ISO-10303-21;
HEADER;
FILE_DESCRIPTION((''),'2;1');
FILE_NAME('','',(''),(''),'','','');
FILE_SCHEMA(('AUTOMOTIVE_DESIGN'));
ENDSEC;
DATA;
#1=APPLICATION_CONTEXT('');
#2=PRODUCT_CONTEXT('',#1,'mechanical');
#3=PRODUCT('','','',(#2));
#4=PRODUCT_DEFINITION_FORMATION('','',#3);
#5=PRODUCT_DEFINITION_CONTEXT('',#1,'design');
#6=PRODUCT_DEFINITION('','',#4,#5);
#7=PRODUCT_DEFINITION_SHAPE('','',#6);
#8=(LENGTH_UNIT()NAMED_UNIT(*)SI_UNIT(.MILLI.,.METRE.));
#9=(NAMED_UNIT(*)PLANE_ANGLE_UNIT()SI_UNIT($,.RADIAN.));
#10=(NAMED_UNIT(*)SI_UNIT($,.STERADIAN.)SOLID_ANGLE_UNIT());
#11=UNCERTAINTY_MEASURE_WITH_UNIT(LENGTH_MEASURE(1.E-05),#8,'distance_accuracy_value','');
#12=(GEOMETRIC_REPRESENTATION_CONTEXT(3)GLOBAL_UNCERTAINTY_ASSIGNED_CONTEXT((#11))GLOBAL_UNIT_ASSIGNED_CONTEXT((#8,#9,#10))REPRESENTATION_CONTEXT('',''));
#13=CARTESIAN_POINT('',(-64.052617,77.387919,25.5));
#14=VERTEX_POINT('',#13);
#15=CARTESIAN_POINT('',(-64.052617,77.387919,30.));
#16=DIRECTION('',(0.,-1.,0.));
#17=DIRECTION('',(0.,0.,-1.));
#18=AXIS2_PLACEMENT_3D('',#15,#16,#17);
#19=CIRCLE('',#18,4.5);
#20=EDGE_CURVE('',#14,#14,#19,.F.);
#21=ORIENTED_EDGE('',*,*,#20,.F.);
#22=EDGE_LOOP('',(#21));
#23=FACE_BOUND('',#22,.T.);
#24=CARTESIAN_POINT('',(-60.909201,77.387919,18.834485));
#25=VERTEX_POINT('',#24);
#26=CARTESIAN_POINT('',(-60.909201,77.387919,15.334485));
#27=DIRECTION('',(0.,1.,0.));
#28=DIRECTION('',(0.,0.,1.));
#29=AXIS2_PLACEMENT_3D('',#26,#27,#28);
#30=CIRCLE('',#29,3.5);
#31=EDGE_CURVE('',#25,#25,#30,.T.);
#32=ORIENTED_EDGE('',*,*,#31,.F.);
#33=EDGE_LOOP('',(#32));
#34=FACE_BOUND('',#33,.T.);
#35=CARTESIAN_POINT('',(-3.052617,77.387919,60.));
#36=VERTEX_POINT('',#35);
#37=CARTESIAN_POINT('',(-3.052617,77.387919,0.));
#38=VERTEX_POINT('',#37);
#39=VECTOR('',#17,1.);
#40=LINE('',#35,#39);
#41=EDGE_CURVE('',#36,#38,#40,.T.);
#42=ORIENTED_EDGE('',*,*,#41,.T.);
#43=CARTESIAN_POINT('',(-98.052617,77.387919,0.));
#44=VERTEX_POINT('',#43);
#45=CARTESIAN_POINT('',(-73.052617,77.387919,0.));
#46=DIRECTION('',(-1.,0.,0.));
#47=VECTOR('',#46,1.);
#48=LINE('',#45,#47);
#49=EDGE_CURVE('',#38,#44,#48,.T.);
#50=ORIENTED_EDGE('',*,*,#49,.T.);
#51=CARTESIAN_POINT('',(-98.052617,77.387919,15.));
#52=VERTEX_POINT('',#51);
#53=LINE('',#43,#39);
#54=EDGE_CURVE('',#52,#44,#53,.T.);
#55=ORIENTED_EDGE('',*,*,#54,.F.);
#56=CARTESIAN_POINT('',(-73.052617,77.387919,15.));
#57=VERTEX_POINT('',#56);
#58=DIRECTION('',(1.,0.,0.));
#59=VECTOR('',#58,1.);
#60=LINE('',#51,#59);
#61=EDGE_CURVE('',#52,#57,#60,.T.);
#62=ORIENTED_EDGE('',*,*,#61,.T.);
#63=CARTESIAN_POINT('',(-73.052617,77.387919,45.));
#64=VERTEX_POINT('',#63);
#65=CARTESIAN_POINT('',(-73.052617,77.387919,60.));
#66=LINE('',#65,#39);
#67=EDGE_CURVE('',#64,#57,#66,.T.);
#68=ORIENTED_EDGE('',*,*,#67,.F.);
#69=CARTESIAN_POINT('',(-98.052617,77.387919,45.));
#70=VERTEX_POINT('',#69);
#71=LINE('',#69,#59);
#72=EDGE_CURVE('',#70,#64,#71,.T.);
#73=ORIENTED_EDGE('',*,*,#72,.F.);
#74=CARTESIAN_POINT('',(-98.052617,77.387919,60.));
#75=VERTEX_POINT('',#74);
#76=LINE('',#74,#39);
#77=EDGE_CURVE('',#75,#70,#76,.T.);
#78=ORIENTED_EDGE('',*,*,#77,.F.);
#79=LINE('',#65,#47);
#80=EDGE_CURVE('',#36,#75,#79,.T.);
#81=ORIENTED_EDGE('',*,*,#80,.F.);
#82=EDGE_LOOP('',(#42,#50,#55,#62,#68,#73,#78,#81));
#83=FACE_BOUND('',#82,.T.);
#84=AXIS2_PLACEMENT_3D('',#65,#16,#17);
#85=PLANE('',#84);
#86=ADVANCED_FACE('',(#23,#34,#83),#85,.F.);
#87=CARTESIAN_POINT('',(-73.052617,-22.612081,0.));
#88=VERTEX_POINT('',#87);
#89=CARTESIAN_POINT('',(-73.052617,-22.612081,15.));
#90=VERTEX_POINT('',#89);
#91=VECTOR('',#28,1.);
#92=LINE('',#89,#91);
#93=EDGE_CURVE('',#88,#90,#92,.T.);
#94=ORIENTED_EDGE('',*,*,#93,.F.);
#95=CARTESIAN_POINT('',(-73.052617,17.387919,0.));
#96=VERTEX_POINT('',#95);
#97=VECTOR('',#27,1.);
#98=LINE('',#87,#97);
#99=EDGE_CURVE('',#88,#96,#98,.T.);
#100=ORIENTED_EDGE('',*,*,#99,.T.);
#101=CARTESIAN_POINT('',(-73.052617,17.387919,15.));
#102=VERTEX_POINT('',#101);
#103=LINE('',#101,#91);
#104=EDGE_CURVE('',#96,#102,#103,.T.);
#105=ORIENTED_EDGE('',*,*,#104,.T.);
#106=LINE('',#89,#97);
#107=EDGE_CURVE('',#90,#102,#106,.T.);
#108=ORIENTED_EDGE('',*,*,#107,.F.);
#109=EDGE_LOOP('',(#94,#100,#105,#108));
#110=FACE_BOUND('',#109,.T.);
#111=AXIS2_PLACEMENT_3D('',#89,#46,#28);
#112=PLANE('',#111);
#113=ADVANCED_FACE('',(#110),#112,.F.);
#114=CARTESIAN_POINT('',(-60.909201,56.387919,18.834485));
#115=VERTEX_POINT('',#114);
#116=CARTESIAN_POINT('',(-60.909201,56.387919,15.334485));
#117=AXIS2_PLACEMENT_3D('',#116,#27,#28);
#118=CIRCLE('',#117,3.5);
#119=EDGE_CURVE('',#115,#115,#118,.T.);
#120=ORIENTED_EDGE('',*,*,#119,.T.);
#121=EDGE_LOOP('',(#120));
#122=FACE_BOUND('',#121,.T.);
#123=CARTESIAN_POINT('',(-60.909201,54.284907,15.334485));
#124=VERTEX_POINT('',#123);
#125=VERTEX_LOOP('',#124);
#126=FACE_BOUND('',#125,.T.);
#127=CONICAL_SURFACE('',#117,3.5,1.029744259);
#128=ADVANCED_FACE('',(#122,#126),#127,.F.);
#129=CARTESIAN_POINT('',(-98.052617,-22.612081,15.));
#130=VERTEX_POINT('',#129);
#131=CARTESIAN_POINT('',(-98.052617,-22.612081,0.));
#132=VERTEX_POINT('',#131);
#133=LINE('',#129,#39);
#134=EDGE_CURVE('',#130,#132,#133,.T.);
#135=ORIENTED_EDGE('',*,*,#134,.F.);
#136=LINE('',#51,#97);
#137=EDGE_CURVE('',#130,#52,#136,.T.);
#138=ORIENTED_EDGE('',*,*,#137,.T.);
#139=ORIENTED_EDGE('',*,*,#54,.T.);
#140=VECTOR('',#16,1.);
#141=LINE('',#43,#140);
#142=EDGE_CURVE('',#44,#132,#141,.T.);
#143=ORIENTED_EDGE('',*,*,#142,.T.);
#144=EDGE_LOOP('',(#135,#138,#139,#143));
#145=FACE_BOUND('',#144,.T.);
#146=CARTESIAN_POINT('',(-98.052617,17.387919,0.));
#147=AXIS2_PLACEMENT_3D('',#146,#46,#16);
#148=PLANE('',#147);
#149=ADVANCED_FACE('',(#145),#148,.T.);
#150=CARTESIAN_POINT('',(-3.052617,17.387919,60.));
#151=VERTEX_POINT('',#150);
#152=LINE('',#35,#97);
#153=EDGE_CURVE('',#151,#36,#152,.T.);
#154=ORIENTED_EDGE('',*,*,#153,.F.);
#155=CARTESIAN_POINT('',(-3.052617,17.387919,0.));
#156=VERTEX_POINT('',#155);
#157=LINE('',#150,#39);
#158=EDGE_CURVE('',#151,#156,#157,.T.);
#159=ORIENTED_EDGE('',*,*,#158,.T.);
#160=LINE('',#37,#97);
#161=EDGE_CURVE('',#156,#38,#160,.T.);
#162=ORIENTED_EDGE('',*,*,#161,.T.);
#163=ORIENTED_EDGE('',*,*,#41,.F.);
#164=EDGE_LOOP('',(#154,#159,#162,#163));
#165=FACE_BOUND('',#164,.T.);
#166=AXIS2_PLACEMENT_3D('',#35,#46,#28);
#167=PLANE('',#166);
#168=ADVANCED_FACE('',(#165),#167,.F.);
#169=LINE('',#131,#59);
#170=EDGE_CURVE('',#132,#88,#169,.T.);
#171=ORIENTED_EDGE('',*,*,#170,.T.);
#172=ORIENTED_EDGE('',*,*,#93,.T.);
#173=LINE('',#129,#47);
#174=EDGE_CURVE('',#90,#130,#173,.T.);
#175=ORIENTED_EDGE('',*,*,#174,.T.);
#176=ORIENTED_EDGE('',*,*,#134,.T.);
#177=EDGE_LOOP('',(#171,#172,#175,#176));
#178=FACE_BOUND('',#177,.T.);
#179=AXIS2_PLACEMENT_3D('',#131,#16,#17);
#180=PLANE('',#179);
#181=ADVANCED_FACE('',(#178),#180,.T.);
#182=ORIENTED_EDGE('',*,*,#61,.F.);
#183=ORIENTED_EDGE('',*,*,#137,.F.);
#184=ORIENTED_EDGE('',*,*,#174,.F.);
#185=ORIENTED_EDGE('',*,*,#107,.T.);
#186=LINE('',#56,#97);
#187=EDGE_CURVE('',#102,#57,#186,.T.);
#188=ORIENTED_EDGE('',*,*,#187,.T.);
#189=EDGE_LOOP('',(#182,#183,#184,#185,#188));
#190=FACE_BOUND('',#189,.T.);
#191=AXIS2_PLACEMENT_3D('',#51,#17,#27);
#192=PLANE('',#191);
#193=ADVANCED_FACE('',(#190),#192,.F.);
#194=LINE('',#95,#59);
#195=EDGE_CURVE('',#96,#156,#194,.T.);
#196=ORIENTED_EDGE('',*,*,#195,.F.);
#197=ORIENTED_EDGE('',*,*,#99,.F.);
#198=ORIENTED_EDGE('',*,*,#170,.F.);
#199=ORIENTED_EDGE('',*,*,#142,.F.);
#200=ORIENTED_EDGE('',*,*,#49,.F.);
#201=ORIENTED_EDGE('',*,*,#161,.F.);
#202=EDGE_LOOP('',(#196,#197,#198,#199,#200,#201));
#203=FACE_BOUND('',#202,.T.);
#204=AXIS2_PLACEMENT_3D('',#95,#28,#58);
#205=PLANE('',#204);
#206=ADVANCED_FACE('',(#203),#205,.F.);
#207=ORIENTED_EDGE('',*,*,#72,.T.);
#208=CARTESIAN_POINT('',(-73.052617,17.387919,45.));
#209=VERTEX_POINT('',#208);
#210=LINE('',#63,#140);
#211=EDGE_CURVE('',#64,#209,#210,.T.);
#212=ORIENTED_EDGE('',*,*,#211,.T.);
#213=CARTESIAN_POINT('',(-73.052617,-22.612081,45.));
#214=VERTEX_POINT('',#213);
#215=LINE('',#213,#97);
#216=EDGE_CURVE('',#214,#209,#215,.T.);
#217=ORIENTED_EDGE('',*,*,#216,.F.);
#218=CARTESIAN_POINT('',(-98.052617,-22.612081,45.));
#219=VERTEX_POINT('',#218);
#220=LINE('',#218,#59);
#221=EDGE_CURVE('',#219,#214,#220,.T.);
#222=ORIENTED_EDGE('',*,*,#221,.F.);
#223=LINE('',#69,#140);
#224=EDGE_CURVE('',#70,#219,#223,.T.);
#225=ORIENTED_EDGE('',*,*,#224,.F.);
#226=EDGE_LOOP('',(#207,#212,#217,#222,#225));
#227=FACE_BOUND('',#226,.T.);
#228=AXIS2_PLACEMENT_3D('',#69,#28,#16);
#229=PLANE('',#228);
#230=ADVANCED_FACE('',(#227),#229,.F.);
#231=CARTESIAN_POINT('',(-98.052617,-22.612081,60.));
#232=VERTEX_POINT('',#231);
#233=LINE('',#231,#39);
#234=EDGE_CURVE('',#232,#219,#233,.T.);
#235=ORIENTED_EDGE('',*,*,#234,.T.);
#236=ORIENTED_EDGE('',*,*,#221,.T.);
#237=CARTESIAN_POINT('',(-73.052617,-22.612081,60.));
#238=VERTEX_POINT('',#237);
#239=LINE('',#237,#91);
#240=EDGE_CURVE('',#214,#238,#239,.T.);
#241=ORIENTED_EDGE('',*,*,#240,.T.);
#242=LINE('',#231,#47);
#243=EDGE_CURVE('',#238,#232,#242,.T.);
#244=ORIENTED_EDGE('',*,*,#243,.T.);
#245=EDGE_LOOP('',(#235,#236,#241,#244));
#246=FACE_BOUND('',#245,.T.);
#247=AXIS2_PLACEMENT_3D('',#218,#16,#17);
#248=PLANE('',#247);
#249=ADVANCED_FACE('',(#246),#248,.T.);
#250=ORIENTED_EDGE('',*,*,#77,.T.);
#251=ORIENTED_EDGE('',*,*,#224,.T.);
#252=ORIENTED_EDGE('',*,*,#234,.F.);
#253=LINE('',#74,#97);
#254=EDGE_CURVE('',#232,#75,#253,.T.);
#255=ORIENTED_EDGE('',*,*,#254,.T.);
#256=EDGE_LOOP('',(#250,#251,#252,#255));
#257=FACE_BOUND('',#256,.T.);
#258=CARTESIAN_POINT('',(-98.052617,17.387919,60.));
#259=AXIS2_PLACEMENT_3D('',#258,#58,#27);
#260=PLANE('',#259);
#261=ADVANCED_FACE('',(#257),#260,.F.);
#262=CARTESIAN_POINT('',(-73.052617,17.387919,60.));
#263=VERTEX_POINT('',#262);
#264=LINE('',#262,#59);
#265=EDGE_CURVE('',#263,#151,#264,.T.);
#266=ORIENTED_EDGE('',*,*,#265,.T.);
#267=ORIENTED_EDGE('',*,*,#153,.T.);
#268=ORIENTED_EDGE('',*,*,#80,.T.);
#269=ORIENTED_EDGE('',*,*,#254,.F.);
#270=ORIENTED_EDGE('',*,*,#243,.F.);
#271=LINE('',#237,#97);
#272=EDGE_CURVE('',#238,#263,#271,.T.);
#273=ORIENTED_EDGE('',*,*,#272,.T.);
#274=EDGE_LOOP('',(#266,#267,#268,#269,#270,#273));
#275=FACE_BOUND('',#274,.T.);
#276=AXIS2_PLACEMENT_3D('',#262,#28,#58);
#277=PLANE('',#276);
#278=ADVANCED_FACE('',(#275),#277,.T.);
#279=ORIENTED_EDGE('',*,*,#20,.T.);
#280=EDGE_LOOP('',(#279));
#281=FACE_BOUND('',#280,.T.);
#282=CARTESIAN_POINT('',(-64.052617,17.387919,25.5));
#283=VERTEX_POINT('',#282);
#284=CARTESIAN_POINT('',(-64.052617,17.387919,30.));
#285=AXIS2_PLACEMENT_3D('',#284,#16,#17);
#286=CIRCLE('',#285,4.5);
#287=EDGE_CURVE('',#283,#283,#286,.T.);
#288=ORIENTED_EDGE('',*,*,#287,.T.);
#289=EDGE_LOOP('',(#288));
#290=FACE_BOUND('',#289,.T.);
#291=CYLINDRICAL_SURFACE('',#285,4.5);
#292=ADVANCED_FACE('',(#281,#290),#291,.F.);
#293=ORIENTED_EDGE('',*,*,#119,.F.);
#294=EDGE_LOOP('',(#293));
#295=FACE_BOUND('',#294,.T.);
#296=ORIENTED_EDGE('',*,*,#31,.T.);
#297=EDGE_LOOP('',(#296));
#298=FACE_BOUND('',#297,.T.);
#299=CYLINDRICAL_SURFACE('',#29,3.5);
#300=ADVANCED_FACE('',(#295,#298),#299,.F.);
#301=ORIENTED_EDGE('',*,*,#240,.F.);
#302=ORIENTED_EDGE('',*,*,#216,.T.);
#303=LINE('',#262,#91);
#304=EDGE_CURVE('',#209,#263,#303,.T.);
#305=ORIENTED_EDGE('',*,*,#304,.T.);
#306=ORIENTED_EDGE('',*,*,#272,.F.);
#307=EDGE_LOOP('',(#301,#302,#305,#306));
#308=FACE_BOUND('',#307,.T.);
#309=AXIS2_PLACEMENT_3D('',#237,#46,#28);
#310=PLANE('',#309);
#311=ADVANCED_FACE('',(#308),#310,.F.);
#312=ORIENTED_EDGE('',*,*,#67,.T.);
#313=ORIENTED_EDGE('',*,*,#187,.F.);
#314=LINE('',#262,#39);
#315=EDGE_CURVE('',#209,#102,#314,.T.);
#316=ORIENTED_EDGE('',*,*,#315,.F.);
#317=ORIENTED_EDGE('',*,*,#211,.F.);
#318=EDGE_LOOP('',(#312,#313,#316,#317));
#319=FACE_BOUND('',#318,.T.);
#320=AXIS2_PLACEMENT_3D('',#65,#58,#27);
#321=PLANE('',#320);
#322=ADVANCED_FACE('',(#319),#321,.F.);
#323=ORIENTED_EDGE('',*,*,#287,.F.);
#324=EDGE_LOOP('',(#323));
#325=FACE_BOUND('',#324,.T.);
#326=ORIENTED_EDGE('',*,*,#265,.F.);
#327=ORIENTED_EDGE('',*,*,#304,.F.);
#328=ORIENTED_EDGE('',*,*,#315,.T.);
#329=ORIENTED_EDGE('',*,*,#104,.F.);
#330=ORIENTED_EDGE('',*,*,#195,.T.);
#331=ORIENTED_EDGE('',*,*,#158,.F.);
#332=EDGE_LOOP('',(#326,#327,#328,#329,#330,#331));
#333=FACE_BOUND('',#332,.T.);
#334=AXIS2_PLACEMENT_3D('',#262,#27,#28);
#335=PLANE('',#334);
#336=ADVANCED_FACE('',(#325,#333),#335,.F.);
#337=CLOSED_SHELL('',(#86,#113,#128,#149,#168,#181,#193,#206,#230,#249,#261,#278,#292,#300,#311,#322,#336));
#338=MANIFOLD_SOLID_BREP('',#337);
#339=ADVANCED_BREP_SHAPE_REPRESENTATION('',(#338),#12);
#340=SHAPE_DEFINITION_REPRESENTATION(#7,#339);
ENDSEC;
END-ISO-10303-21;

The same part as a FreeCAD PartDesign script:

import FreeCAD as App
import Part
import Sketcher
from FreeCAD import Vector

doc = App.newDocument("Part")
body = doc.addObject("PartDesign::Body", "Body")

sketch1 = body.newObject("Sketcher::SketchObject", "Sketch")
sketch1.AttachmentSupport = (doc.getObject("XY_Plane"), [""])
sketch1.MapMode = "FlatFace"
sketch1.addGeometry(Part.LineSegment(Vector(-73, 77, 0), Vector(-73, 17, 0)), False)
sketch1.addGeometry(Part.LineSegment(Vector(-73, 17, 0), Vector(-3, 17, 0)), False)
sketch1.addGeometry(Part.LineSegment(Vector(-3, 17, 0), Vector(-3, 77, 0)), False)
sketch1.addGeometry(Part.LineSegment(Vector(-3, 77, 0), Vector(-73, 77, 0)), False)
sketch1.addConstraint(Sketcher.Constraint("Coincident", 0, 2, 1, 1))
sketch1.addConstraint(Sketcher.Constraint("Coincident", 1, 2, 2, 1))
sketch1.addConstraint(Sketcher.Constraint("Coincident", 2, 2, 3, 1))
sketch1.addConstraint(Sketcher.Constraint("Coincident", 3, 2, 0, 1))
sketch1.addConstraint(Sketcher.Constraint("Vertical", 0))
sketch1.addConstraint(Sketcher.Constraint("Horizontal", 1))
sketch1.addConstraint(Sketcher.Constraint("Vertical", 2))
sketch1.addConstraint(Sketcher.Constraint("Horizontal", 3))
sketch1.addConstraint(Sketcher.Constraint("DistanceX", 1, 1, 1, 2, 70.0))
sketch1.addConstraint(Sketcher.Constraint("DistanceY", 0, 2, 0, 1, 60.0))
sketch1.addConstraint(Sketcher.Constraint("DistanceY", -1, 1, 0, 2, 17.387919))
sketch1.addConstraint(Sketcher.Constraint("DistanceX", 0, 2, -1, 1, 73.052617))
pad1 = body.newObject("PartDesign::Pad", "Pad")
pad1.Profile = sketch1
pad1.Length = 60

sketch2 = body.newObject("Sketcher::SketchObject", "Sketch001")
sketch2.AttachmentSupport = (doc.getObject("YZ_Plane"), [""])
sketch2.MapMode = "FlatFace"
sketch2.AttachmentOffset = App.Placement(Vector(0, 0, -73.052617), App.Rotation())
sketch2.addGeometry(Part.LineSegment(Vector(77, 0, 0), Vector(17, 0, 0)), False)
sketch2.addGeometry(Part.LineSegment(Vector(17, 0, 0), Vector(17, 15, 0)), False)
sketch2.addGeometry(Part.LineSegment(Vector(17, 15, 0), Vector(77, 15, 0)), False)
sketch2.addGeometry(Part.LineSegment(Vector(77, 15, 0), Vector(77, 0, 0)), False)
sketch2.addGeometry(Part.LineSegment(Vector(77, 45, 0), Vector(17, 45, 0)), False)
sketch2.addGeometry(Part.LineSegment(Vector(17, 45, 0), Vector(17, 60, 0)), False)
sketch2.addGeometry(Part.LineSegment(Vector(17, 60, 0), Vector(77, 60, 0)), False)
sketch2.addGeometry(Part.LineSegment(Vector(77, 60, 0), Vector(77, 45, 0)), False)
sketch2.addConstraint(Sketcher.Constraint("Coincident", 0, 2, 1, 1))
sketch2.addConstraint(Sketcher.Constraint("Coincident", 1, 2, 2, 1))
sketch2.addConstraint(Sketcher.Constraint("Coincident", 2, 2, 3, 1))
sketch2.addConstraint(Sketcher.Constraint("Coincident", 3, 2, 0, 1))
sketch2.addConstraint(Sketcher.Constraint("Coincident", 4, 2, 5, 1))
sketch2.addConstraint(Sketcher.Constraint("Coincident", 5, 2, 6, 1))
sketch2.addConstraint(Sketcher.Constraint("Coincident", 6, 2, 7, 1))
sketch2.addConstraint(Sketcher.Constraint("Coincident", 7, 2, 4, 1))
sketch2.addConstraint(Sketcher.Constraint("Horizontal", 0))
sketch2.addConstraint(Sketcher.Constraint("Vertical", 1))
sketch2.addConstraint(Sketcher.Constraint("Horizontal", 2))
sketch2.addConstraint(Sketcher.Constraint("Vertical", 3))
sketch2.addConstraint(Sketcher.Constraint("Horizontal", 4))
sketch2.addConstraint(Sketcher.Constraint("Vertical", 5))
sketch2.addConstraint(Sketcher.Constraint("Horizontal", 6))
sketch2.addConstraint(Sketcher.Constraint("Vertical", 7))
sketch2.addConstraint(Sketcher.Constraint("PointOnObject", 0, 2, -1))
sketch2.addConstraint(Sketcher.Constraint("Vertical", 1, 2, 4, 2))
sketch2.addConstraint(Sketcher.Constraint("Vertical", 3, 2, 6, 2))
sketch2.addConstraint(Sketcher.Constraint("Equal", 3, 5))
sketch2.addConstraint(Sketcher.Constraint("DistanceX", 0, 2, 0, 1, 60.0))
sketch2.addConstraint(Sketcher.Constraint("DistanceY", 1, 1, 1, 2, 15.0))
sketch2.addConstraint(Sketcher.Constraint("DistanceY", -1, 1, 4, 2, 45.0))
sketch2.addConstraint(Sketcher.Constraint("DistanceX", -1, 1, 0, 2, 17.387919))
pad2 = body.newObject("PartDesign::Pad", "Pad001")
pad2.Profile = sketch2
pad2.Length = 25
pad2.Reversed = True

sketch3 = body.newObject("Sketcher::SketchObject", "Sketch002")
sketch3.AttachmentSupport = (doc.getObject("XZ_Plane"), [""])
sketch3.MapMode = "FlatFace"
sketch3.AttachmentOffset = App.Placement(Vector(0, 0, -17.387919), App.Rotation())
sketch3.addGeometry(Part.LineSegment(Vector(-98, 60, 0), Vector(-98, 45, 0)), False)
sketch3.addGeometry(Part.LineSegment(Vector(-98, 45, 0), Vector(-73, 45, 0)), False)
sketch3.addGeometry(Part.LineSegment(Vector(-73, 45, 0), Vector(-73, 60, 0)), False)
sketch3.addGeometry(Part.LineSegment(Vector(-73, 60, 0), Vector(-98, 60, 0)), False)
sketch3.addGeometry(Part.LineSegment(Vector(-98, 15, 0), Vector(-98, 0, 0)), False)
sketch3.addGeometry(Part.LineSegment(Vector(-98, 0, 0), Vector(-73, 0, 0)), False)
sketch3.addGeometry(Part.LineSegment(Vector(-73, 0, 0), Vector(-73, 15, 0)), False)
sketch3.addGeometry(Part.LineSegment(Vector(-73, 15, 0), Vector(-98, 15, 0)), False)
sketch3.addConstraint(Sketcher.Constraint("Coincident", 0, 2, 1, 1))
sketch3.addConstraint(Sketcher.Constraint("Coincident", 1, 2, 2, 1))
sketch3.addConstraint(Sketcher.Constraint("Coincident", 2, 2, 3, 1))
sketch3.addConstraint(Sketcher.Constraint("Coincident", 3, 2, 0, 1))
sketch3.addConstraint(Sketcher.Constraint("Coincident", 4, 2, 5, 1))
sketch3.addConstraint(Sketcher.Constraint("Coincident", 5, 2, 6, 1))
sketch3.addConstraint(Sketcher.Constraint("Coincident", 6, 2, 7, 1))
sketch3.addConstraint(Sketcher.Constraint("Coincident", 7, 2, 4, 1))
sketch3.addConstraint(Sketcher.Constraint("Vertical", 0))
sketch3.addConstraint(Sketcher.Constraint("Horizontal", 1))
sketch3.addConstraint(Sketcher.Constraint("Vertical", 2))
sketch3.addConstraint(Sketcher.Constraint("Horizontal", 3))
sketch3.addConstraint(Sketcher.Constraint("Vertical", 4))
sketch3.addConstraint(Sketcher.Constraint("Horizontal", 5))
sketch3.addConstraint(Sketcher.Constraint("Vertical", 6))
sketch3.addConstraint(Sketcher.Constraint("Horizontal", 7))
sketch3.addConstraint(Sketcher.Constraint("PointOnObject", 4, 2, -1))
sketch3.addConstraint(Sketcher.Constraint("Vertical", 3, 2, 4, 2))
sketch3.addConstraint(Sketcher.Constraint("Vertical", 2, 2, 5, 2))
sketch3.addConstraint(Sketcher.Constraint("Equal", 2, 4))
sketch3.addConstraint(Sketcher.Constraint("DistanceX", 1, 1, 1, 2, 25.0))
sketch3.addConstraint(Sketcher.Constraint("DistanceY", 0, 2, 0, 1, 15.0))
sketch3.addConstraint(Sketcher.Constraint("DistanceY", -1, 1, 0, 2, 45.0))
sketch3.addConstraint(Sketcher.Constraint("DistanceX", 0, 2, -1, 1, 98.052617))
pad3 = body.newObject("PartDesign::Pad", "Pad002")
pad3.Profile = sketch3
pad3.Length = 40

sketch4 = body.newObject("Sketcher::SketchObject", "Sketch003")
sketch4.AttachmentSupport = (doc.getObject("XZ_Plane"), [""])
sketch4.MapMode = "FlatFace"
sketch4.AttachmentOffset = App.Placement(Vector(0, 0, -77.387919), App.Rotation())
sketch4.addGeometry(Part.Circle(Vector(-60.9, 15.3, 0), Vector(0, 0, 1), 3.5), False)
sketch4.addConstraint(Sketcher.Constraint("Diameter", 0, 7.0))
sketch4.addConstraint(Sketcher.Constraint("DistanceX", 0, 3, -1, 1, 60.909201))
sketch4.addConstraint(Sketcher.Constraint("DistanceY", -1, 1, 0, 3, 15.334485))
doc.recompute()
hole = body.newObject("PartDesign::Hole", "Hole")
hole.Profile = sketch4
hole.ThreadType = "None"
hole.Diameter = 7
hole.DepthType = "Dimension"
hole.Depth = 21
hole.DrillPoint = "Angled"
hole.DrillPointAngle = 118
hole.Reversed = True

sketch5 = body.newObject("Sketcher::SketchObject", "Sketch004")
sketch5.AttachmentSupport = (doc.getObject("XZ_Plane"), [""])
sketch5.MapMode = "FlatFace"
sketch5.AttachmentOffset = App.Placement(Vector(0, 0, -17.387919), App.Rotation())
sketch5.addGeometry(Part.Circle(Vector(-64.1, 30, 0), Vector(0, 0, 1), 4.5), False)
sketch5.addConstraint(Sketcher.Constraint("Diameter", 0, 9.0))
sketch5.addConstraint(Sketcher.Constraint("DistanceY", -1, 1, 0, 3, 30.0))
sketch5.addConstraint(Sketcher.Constraint("DistanceX", 0, 3, -1, 1, 64.052617))
doc.recompute()
hole2 = body.newObject("PartDesign::Hole", "Hole001")
hole2.Profile = sketch5
hole2.ThreadType = "None"
hole2.Diameter = 9
hole2.DepthType = "Dimension"
hole2.Depth = 25
hole2.DrillPoint = "Angled"
hole2.DrillPointAngle = 118

sketch6 = body.newObject("Sketcher::SketchObject", "Sketch005")
sketch6.AttachmentSupport = (doc.getObject("XZ_Plane"), [""])
sketch6.MapMode = "FlatFace"
sketch6.AttachmentOffset = App.Placement(Vector(0, 0, -17.387919), App.Rotation())
sketch6.addGeometry(Part.Circle(Vector(-64.1, 30, 0), Vector(0, 0, 1), 4.5), False)
sketch6.addConstraint(Sketcher.Constraint("Diameter", 0, 9.0))
sketch6.addConstraint(Sketcher.Constraint("DistanceY", -1, 1, 0, 3, 30.0))
sketch6.addConstraint(Sketcher.Constraint("DistanceX", 0, 3, -1, 1, 64.052617))
pocket1 = body.newObject("PartDesign::Pocket", "Pocket")
pocket1.Profile = sketch6
pocket1.Length = 60

doc.recompute()
